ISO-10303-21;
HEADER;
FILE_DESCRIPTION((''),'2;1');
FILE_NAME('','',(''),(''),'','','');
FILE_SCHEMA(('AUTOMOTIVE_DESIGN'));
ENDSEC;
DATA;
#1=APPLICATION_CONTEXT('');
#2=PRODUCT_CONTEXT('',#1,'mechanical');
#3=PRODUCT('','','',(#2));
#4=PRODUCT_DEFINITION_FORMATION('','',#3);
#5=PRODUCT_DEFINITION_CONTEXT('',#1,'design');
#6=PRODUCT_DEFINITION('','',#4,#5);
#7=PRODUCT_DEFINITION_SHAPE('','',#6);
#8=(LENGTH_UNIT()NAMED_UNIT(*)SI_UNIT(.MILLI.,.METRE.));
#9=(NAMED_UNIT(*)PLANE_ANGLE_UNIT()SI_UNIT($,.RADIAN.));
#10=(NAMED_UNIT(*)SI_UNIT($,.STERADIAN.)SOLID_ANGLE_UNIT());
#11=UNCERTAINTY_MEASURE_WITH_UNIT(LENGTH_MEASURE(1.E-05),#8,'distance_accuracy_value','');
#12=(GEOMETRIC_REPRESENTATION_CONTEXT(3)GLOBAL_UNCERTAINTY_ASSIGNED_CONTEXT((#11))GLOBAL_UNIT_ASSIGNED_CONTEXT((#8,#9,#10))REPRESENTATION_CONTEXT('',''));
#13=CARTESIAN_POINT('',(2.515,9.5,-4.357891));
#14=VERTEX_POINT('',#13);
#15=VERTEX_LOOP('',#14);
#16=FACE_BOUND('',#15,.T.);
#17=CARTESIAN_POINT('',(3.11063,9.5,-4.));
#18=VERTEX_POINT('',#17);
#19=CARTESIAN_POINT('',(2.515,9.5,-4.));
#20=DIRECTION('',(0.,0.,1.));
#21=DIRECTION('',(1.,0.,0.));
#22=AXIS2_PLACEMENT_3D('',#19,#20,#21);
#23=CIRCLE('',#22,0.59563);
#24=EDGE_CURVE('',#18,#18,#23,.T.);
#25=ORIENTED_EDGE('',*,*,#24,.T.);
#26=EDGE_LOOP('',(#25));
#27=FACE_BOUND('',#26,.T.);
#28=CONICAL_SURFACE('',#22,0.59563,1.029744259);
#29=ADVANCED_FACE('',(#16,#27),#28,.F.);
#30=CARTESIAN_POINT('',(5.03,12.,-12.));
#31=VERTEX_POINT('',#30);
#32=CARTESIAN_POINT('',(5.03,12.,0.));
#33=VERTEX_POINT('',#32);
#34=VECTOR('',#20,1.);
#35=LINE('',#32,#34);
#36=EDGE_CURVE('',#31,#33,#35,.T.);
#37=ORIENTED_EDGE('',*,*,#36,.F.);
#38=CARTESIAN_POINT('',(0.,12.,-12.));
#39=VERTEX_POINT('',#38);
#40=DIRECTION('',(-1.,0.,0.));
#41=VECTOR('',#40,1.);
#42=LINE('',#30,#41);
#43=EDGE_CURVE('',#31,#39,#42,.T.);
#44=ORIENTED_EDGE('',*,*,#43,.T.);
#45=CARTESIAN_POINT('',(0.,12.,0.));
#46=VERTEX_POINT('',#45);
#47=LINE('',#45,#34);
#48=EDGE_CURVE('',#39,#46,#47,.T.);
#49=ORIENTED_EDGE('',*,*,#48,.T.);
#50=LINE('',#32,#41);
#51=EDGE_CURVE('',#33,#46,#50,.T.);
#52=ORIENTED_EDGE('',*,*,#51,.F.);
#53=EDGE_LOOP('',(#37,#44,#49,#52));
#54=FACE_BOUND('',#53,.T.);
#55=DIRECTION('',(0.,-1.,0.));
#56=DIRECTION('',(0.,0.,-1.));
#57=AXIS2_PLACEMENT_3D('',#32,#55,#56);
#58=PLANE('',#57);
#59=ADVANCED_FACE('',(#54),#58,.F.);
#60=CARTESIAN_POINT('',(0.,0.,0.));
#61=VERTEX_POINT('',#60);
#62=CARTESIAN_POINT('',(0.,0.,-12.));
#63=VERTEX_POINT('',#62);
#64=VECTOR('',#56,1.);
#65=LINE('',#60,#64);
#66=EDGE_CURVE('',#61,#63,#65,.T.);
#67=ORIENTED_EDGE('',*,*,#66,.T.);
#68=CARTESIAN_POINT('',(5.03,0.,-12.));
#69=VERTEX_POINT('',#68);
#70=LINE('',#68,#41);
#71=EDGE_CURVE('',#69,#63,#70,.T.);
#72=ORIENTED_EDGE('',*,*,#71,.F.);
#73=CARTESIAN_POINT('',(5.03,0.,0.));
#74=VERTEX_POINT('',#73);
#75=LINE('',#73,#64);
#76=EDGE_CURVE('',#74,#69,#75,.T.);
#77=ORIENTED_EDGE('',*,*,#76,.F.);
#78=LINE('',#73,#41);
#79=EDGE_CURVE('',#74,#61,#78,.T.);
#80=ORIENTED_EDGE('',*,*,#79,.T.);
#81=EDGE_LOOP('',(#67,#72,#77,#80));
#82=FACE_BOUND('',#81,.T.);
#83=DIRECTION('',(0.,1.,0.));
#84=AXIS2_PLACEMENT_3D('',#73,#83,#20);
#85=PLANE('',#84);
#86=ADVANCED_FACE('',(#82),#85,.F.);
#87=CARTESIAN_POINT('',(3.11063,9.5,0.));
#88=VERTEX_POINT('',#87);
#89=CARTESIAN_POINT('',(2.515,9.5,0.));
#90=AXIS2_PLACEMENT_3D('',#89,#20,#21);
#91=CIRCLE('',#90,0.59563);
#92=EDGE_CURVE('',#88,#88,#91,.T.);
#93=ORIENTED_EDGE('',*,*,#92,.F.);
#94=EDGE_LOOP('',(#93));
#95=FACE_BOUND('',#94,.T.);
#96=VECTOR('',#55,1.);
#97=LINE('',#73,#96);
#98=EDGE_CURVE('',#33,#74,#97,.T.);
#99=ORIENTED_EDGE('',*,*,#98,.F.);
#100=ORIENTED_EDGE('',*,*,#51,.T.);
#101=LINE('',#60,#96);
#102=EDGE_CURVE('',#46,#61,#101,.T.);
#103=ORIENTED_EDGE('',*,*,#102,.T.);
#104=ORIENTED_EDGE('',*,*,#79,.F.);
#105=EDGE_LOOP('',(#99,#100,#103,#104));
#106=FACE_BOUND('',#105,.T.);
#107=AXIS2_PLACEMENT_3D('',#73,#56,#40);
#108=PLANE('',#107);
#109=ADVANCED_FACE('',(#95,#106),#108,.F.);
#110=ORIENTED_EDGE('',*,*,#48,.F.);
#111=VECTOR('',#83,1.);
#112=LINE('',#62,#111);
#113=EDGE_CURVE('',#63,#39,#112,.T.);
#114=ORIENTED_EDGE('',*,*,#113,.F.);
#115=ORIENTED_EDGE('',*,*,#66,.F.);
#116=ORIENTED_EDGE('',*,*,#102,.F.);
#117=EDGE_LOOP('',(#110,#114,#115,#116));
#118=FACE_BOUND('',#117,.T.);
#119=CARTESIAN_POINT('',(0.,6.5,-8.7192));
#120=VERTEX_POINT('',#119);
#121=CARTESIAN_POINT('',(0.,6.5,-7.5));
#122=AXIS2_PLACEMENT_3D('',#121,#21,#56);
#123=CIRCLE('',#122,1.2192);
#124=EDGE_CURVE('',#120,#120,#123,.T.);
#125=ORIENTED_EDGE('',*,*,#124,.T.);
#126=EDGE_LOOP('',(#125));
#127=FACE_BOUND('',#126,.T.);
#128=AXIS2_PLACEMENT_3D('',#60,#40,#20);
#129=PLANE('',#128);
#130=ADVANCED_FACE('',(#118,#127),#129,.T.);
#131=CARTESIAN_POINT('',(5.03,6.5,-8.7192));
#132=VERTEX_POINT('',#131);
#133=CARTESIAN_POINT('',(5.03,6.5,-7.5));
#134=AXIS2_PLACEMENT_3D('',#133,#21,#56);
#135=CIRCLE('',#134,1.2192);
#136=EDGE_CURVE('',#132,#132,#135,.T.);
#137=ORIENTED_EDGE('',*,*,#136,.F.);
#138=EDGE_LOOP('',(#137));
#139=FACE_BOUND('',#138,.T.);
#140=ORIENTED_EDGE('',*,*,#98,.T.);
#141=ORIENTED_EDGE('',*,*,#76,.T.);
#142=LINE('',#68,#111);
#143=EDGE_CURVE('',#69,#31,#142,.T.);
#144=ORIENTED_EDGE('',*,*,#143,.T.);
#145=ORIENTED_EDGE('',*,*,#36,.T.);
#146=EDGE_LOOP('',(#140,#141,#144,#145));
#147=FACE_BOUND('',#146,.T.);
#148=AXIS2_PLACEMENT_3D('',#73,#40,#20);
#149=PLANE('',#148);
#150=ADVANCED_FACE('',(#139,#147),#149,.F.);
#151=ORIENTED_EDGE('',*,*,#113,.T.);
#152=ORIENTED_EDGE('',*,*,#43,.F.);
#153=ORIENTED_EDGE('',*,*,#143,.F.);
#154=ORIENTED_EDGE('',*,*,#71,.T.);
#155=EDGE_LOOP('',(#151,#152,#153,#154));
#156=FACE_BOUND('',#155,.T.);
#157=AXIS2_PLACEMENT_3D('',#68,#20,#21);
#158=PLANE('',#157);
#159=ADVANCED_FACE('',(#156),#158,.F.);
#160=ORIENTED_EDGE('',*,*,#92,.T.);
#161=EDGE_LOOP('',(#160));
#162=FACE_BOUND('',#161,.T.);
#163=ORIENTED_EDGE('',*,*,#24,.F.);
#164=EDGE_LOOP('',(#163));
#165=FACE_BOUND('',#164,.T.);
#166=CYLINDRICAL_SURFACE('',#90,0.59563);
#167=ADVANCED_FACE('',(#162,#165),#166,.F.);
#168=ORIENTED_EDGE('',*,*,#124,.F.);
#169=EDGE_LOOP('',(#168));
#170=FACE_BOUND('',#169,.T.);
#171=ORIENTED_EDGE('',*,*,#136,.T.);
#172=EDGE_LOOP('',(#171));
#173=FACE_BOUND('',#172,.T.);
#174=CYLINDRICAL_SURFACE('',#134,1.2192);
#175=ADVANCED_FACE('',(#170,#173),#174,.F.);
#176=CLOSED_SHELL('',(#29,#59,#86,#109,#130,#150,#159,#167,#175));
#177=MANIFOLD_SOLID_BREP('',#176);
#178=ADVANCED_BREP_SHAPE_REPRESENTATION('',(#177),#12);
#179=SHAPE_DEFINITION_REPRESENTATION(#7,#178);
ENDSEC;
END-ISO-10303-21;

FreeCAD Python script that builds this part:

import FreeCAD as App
import Part
import Sketcher
from FreeCAD import Vector
Q = App.Units.Quantity


def add_polygon(sketch, points):
    """Adds a closed chain of lines whose ends are joined by coincident constraints."""
    first, n = sketch.GeometryCount, len(points)
    for a, b in zip(points, points[1:] + points[:1]):
        sketch.addGeometry(Part.LineSegment(App.Vector(*a, 0), App.Vector(*b, 0)), False)
    for i in range(n):
        sketch.addConstraint(Sketcher.Constraint("Coincident", first + i, 2, first + (i + 1) % n, 1))

doc = App.newDocument("Part")
body = doc.addObject("PartDesign::Body", "Body")

# Sketch on YZ plane
sketch1 = body.newObject("Sketcher::SketchObject", "Sketch")
sketch1.AttachmentSupport = (doc.getObject("YZ_Plane"), [""])
sketch1.MapMode = "FlatFace"
add_polygon(sketch1, [(12, 0), (0, 0), (0, -12), (12, -12)])  # lines 0-3
sketch1.addConstraint([
    Sketcher.Constraint("Horizontal", 0),
    Sketcher.Constraint("Vertical", 1),
    Sketcher.Constraint("Horizontal", 2),
    Sketcher.Constraint("Vertical", 3),
    Sketcher.Constraint("Coincident", 0, 2, -1, 1),
    Sketcher.Constraint("Equal", 2, 1),
    Sketcher.Constraint("DistanceX", 0, 2, 0, 1, Q("12 mm")),
])
pad1 = body.newObject("PartDesign::Pad", "Pad")
pad1.Profile = sketch1
pad1.Length = 5.03

# Sketch on XY plane
sketch2 = body.newObject("Sketcher::SketchObject", "Sketch001")
sketch2.AttachmentSupport = (doc.getObject("XY_Plane"), [""])
sketch2.MapMode = "FlatFace"
sketch2.addGeometry(Part.Circle(Vector(2.515, 9.5, 0), Vector(0, 0, 1), 0.59563), False)
sketch2.addConstraint([
    Sketcher.Constraint("DistanceY", -1, 1, 0, 3, Q("9.5 mm")),
    Sketcher.Constraint("Diameter", 0, Q("1.19126 mm")),
    Sketcher.Constraint("DistanceX", -1, 1, 0, 3, Q("2.515 mm")),
])
doc.recompute()
hole = body.newObject("PartDesign::Hole", "Hole")
hole.Profile = sketch2
hole.ThreadType = "None"
hole.Diameter = 1.19126
hole.DepthType = "Dimension"
hole.Depth = 4
hole.DrillPoint = "Angled"
hole.DrillPointAngle = 118

# Sketch on YZ plane
sketch3 = body.newObject("Sketcher::SketchObject", "Sketch002")
sketch3.AttachmentSupport = (doc.getObject("YZ_Plane"), [""])
sketch3.MapMode = "FlatFace"
sketch3.AttachmentOffset = App.Placement(Vector(0, 0, 5.03), App.Rotation())
sketch3.addGeometry(Part.Circle(Vector(6.5, -7.5, 0), Vector(0, 0, 1), 1.2192), False)
sketch3.addConstraint([
    Sketcher.Constraint("Diameter", 0, Q("2.4384 mm")),
    Sketcher.Constraint("DistanceX", -1, 1, 0, 3, Q("6.5 mm")),
    Sketcher.Constraint("DistanceY", 0, 3, -1, 1, Q("7.5 mm")),
])
doc.recompute()
hole2 = body.newObject("PartDesign::Hole", "Hole001")
hole2.Profile = sketch3
hole2.ThreadType = "None"
hole2.Diameter = 2.4384
hole2.DepthType = "ThroughAll"

doc.recompute()
